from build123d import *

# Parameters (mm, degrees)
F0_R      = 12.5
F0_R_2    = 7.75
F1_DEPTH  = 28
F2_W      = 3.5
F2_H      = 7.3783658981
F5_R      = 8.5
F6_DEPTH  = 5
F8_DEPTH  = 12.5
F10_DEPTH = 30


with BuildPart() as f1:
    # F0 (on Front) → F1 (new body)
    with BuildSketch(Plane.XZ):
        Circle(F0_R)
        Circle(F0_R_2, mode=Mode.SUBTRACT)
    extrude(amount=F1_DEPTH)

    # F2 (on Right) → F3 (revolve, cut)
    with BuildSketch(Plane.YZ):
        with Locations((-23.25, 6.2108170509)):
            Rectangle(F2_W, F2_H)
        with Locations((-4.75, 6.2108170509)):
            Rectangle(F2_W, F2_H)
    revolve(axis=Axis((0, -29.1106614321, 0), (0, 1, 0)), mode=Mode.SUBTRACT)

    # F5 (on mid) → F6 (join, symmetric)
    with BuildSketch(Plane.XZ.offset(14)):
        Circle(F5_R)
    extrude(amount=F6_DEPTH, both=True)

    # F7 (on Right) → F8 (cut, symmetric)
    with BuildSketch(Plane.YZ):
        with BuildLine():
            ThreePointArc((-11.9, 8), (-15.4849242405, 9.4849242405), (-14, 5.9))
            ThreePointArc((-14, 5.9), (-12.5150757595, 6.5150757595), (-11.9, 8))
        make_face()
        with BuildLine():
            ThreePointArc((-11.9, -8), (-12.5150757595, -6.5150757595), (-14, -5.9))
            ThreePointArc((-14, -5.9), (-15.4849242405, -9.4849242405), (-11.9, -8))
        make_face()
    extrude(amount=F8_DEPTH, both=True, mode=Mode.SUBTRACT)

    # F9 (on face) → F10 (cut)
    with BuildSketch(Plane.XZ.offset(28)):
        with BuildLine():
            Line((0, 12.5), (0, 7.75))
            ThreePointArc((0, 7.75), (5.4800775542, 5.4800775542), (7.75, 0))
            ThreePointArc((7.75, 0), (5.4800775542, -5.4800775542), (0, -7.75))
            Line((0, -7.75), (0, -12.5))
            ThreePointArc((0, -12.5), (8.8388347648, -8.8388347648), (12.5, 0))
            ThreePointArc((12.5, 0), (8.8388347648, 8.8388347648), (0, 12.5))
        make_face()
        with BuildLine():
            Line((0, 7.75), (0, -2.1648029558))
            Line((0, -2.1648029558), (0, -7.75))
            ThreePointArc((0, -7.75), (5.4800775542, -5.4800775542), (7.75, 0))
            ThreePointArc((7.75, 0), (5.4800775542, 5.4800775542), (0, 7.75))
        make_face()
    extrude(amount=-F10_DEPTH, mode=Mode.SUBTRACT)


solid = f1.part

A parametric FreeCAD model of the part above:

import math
import FreeCAD as App
import Part
import Sketcher
Q = App.Units.Quantity

doc = App.newDocument("Part")
body = doc.addObject("PartDesign::Body", "Body")

sketch1 = body.newObject("Sketcher::SketchObject", "Sketch")
sketch1.AttachmentSupport = (doc.getObject("XZ_Plane"), [""])
sketch1.MapMode = "FlatFace"
sketch1.addGeometry([
    Part.Circle(App.Vector(0, 0, 0), App.Vector(0, 0, 1), 12),
    Part.Circle(App.Vector(0, 0, 0), App.Vector(0, 0, 1), 8),
], False)
sketch1.addConstraint([
    Sketcher.Constraint("Coincident", 0, 3, -1, 1),
    Sketcher.Constraint("Coincident", 1, 3, -1, 1),
    Sketcher.Constraint("Diameter", 0, Q("25 mm")),
    Sketcher.Constraint("Diameter", 1, Q("15.5 mm")),
])
pad1 = body.newObject("PartDesign::Pad", "Pad")
pad1.Profile = sketch1
pad1.Length = 28

sketch2 = body.newObject("Sketcher::SketchObject", "Sketch001")
sketch2.AttachmentSupport = (doc.getObject("YZ_Plane"), [""])
sketch2.MapMode = "FlatFace"
sketch2.addGeometry([
    Part.LineSegment(App.Vector(-25, 9.9, 0), App.Vector(-25, 2.5, 0)),
    Part.LineSegment(App.Vector(-25, 2.5, 0), App.Vector(-21.5, 2.5, 0)),
    Part.LineSegment(App.Vector(-21.5, 2.5, 0), App.Vector(-21.5, 9.9, 0)),
    Part.LineSegment(App.Vector(-21.5, 9.9, 0), App.Vector(-25, 9.9, 0)),
    Part.LineSegment(App.Vector(-6.5, 9.9, 0), App.Vector(-6.5, 2.5, 0)),
    Part.LineSegment(App.Vector(-6.5, 2.5, 0), App.Vector(-3, 2.5, 0)),
    Part.LineSegment(App.Vector(-3, 2.5, 0), App.Vector(-3, 9.9, 0)),
    Part.LineSegment(App.Vector(-3, 9.9, 0), App.Vector(-6.5, 9.9, 0)),
], False)
sketch2.addConstraint([
    Sketcher.Constraint("Coincident", 0, 2, 1, 1),
    Sketcher.Constraint("Coincident", 1, 2, 2, 1),
    Sketcher.Constraint("Coincident", 2, 2, 3, 1),
    Sketcher.Constraint("Coincident", 3, 2, 0, 1),
    Sketcher.Constraint("Coincident", 4, 2, 5, 1),
    Sketcher.Constraint("Coincident", 5, 2, 6, 1),
    Sketcher.Constraint("Coincident", 6, 2, 7, 1),
    Sketcher.Constraint("Coincident", 7, 2, 4, 1),
    Sketcher.Constraint("Vertical", 0),
    Sketcher.Constraint("Horizontal", 1),
    Sketcher.Constraint("Vertical", 2),
    Sketcher.Constraint("Horizontal", 3),
    Sketcher.Constraint("Vertical", 4),
    Sketcher.Constraint("Horizontal", 5),
    Sketcher.Constraint("Vertical", 6),
    Sketcher.Constraint("Horizontal", 7),
    Sketcher.Constraint("Horizontal", 1, 2, 4, 2),
    Sketcher.Constraint("Horizontal", 3, 2, 6, 2),
    Sketcher.Constraint("Equal", 3, 5),
    Sketcher.Constraint("DistanceX", 1, 1, 1, 2, Q("3.5 mm")),
    Sketcher.Constraint("DistanceX", 0, 2, -1, 1, Q("25 mm")),
    Sketcher.Constraint("DistanceX", 5, 2, -1, 1, Q("3 mm")),
    Sketcher.Constraint("DistanceY", -1, 1, 2, 2, Q("9.9 mm")),
    Sketcher.Constraint("DistanceY", 0, 2, 0, 1, Q("7.378366 mm")),
])
groove = body.newObject("PartDesign::Groove", "Groove")
groove.Profile = sketch2
groove.ReferenceAxis = (sketch2, ["H_Axis"])
groove.Angle = 360

sketch3 = body.newObject("Sketcher::SketchObject", "Sketch002")
sketch3.AttachmentSupport = (doc.getObject("XZ_Plane"), [""])
sketch3.MapMode = "FlatFace"
sketch3.AttachmentOffset = App.Placement(App.Vector(0, 0, 14), App.Rotation())
sketch3.addGeometry(Part.Circle(App.Vector(0, 0, 0), App.Vector(0, 0, 1), 8), False)
sketch3.addConstraint([
    Sketcher.Constraint("Coincident", 0, 3, -1, 1),
    Sketcher.Constraint("Diameter", 0, Q("17 mm")),
])
pad2 = body.newObject("PartDesign::Pad", "Pad001")
pad2.Profile = sketch3
pad2.Length = 10
pad2.Midplane = True

sketch4 = body.newObject("Sketcher::SketchObject", "Sketch003")
sketch4.AttachmentSupport = (doc.getObject("YZ_Plane"), [""])
sketch4.MapMode = "FlatFace"
sketch4.addGeometry([
    Part.ArcOfCircle(Part.Circle(App.Vector(-14, 8, 0), App.Vector(0, 0, 1), 2.1), math.radians(0), math.radians(270)),
    Part.ArcOfCircle(Part.Circle(App.Vector(-14, 8, 0), App.Vector(0, 0, 1), 2.1), math.radians(-90), math.radians(0)),
    Part.ArcOfCircle(Part.Circle(App.Vector(-14, -8, 0), App.Vector(0, 0, 1), 2.1), math.radians(0), math.radians(90)),
    Part.ArcOfCircle(Part.Circle(App.Vector(-14, -8, 0), App.Vector(0, 0, 1), 2.1), math.radians(90), math.radians(360)),
], False)
sketch4.addConstraint([
    Sketcher.Constraint("Tangent", 0, 1, 1, 2),
    Sketcher.Constraint("Coincident", 1, 1, 0, 2),
    Sketcher.Constraint("Tangent", 2, 1, 3, 2),
    Sketcher.Constraint("Coincident", 3, 1, 2, 2),
    Sketcher.Constraint("Equal", 1, 2),
    Sketcher.Constraint("Symmetric", 0, 3, 2, 3, -1),
    Sketcher.Constraint("Horizontal", 1, 3, 0, 1),
    Sketcher.Constraint("Horizontal", 3, 3, 2, 1),
    Sketcher.Constraint("Vertical", 3, 3, 1, 1),
    Sketcher.Constraint("Vertical", 1, 1, 3, 1),
    Sketcher.Constraint("Radius", 0, Q("2.1 mm")),
    Sketcher.Constraint("DistanceX", 0, 3, -1, 1, Q("14 mm")),
    Sketcher.Constraint("DistanceY", -1, 1, 0, 3, Q("8 mm")),
])
pocket1 = body.newObject("PartDesign::Pocket", "Pocket")
pocket1.Profile = sketch4
pocket1.Length = 25
pocket1.Midplane = True

sketch5 = body.newObject("Sketcher::SketchObject", "Sketch004")
sketch5.AttachmentSupport = (doc.getObject("XZ_Plane"), [""])
sketch5.MapMode = "FlatFace"
sketch5.AttachmentOffset = App.Placement(App.Vector(0, 0, 28), App.Rotation())
sketch5.addGeometry([
    Part.LineSegment(App.Vector(0, 12, 0), App.Vector(0, -12, 0)),
    Part.ArcOfCircle(Part.Circle(App.Vector(0, 0, 0), App.Vector(0, 0, 1), 12), math.radians(-90), math.radians(0)),
    Part.ArcOfCircle(Part.Circle(App.Vector(0, 0, 0), App.Vector(0, 0, 1), 12), math.radians(0), math.radians(90)),
], False)
sketch5.addConstraint([
    Sketcher.Constraint("Coincident", 0, 2, 1, 1),
    Sketcher.Constraint("Tangent", 1, 2, 2, 1),
    Sketcher.Constraint("Coincident", 2, 2, 0, 1),
    Sketcher.Constraint("Vertical", 0),
    Sketcher.Constraint("Coincident", 1, 3, -1, 1),
    Sketcher.Constraint("Equal", 1, 2),
    Sketcher.Constraint("PointOnObject", 0, 2, -2),
    Sketcher.Constraint("PointOnObject", 1, 2, -1),
    Sketcher.Constraint("Radius", 1, Q("12.5 mm")),
])
pocket2 = body.newObject("PartDesign::Pocket", "Pocket001")
pocket2.Profile = sketch5
pocket2.Length = 30

doc.recompute()
